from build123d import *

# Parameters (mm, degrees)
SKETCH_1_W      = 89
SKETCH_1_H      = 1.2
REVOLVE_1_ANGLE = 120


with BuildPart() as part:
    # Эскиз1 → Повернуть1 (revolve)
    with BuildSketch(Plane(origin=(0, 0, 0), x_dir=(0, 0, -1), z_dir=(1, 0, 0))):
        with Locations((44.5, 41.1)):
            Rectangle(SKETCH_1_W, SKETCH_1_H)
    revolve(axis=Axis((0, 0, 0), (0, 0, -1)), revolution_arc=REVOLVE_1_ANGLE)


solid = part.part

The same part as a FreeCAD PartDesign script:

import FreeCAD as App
import Part
import Sketcher

V = App.Vector
Q = App.Units.Quantity

doc = App.newDocument("Part")
params = doc.addObject("Spreadsheet::Sheet", "Params")
for row, (alias, value) in enumerate([
    ("sketch1_height", "89 mm"),
    ("sketch1_width", "1.2 mm"),
    ("revolution_angle", "120 deg"),
], start=1):
    params.set(f"A{row}", alias)
    params.set(f"B{row}", "=" + value)
    params.setAlias(f"B{row}", alias)

body = doc.addObject("PartDesign::Body", "Body")

# Sketch on YZ plane
sketch1 = body.newObject("Sketcher::SketchObject", "Sketch")
sketch1.AttachmentSupport = (doc.getObject("YZ_Plane"), [""])
sketch1.MapMode = "FlatFace"
sketch1.addGeometry(Part.LineSegment(V(41.7, 0, 0), V(40.5, 0, 0)), False)
sketch1.addGeometry(Part.LineSegment(V(40.5, 0, 0), V(40.5, -89, 0)), False)
sketch1.addGeometry(Part.LineSegment(V(40.5, -89, 0), V(41.7, -89, 0)), False)
sketch1.addGeometry(Part.LineSegment(V(41.7, -89, 0), V(41.7, 0, 0)), False)
sketch1.addConstraint(Sketcher.Constraint("Coincident", 0, 2, 1, 1))
sketch1.addConstraint(Sketcher.Constraint("Coincident", 1, 2, 2, 1))
sketch1.addConstraint(Sketcher.Constraint("Coincident", 2, 2, 3, 1))
sketch1.addConstraint(Sketcher.Constraint("Coincident", 3, 2, 0, 1))
sketch1.addConstraint(Sketcher.Constraint("Horizontal", 0))
sketch1.addConstraint(Sketcher.Constraint("Vertical", 1))
sketch1.addConstraint(Sketcher.Constraint("Horizontal", 2))
sketch1.addConstraint(Sketcher.Constraint("Vertical", 3))
sketch1.addConstraint(Sketcher.Constraint("PointOnObject", 0, 2, -1))
sketch1.addConstraint(Sketcher.Constraint("DistanceY", 1, 2, 1, 1, Q("89 mm")))
sketch1.addConstraint(Sketcher.Constraint("DistanceX", 0, 2, 0, 1, Q("1.2 mm")))
sketch1.addConstraint(Sketcher.Constraint("DistanceX", -1, 1, 0, 2, Q("40.5 mm")))
sketch1.setExpression("Constraints[9]", "Params.sketch1_height")
sketch1.setExpression("Constraints[10]", "Params.sketch1_width")
revolution = body.newObject("PartDesign::Revolution", "Revolution")
revolution.Profile = sketch1
revolution.ReferenceAxis = (sketch1, ["V_Axis"])
revolution.setExpression("Angle", "Params.revolution_angle")
revolution.Reversed = True

doc.recompute()
